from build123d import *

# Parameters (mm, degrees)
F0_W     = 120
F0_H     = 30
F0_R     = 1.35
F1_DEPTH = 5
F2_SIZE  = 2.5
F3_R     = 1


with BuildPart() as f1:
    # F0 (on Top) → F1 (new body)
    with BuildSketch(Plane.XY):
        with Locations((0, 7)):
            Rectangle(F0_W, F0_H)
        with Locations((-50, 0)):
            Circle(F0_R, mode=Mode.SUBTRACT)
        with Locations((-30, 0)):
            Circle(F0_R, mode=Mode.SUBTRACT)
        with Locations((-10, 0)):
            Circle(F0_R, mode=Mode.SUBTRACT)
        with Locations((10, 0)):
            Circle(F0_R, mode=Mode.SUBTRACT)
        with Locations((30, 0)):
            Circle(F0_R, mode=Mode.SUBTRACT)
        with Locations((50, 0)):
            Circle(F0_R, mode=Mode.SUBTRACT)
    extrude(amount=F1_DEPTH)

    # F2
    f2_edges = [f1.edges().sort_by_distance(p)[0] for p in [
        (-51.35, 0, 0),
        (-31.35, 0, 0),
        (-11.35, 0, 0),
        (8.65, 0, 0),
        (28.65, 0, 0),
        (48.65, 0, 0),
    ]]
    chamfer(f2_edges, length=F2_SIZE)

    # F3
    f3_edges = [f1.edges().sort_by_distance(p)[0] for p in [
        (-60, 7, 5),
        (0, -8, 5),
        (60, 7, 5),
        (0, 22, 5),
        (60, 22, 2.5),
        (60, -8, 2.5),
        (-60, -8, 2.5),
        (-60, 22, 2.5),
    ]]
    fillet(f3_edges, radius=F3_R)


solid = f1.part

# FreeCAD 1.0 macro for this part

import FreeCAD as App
import Part
import Sketcher

V = App.Vector
Q = App.Units.Quantity


def edges_at(feature, points):
    """Names of the edges that pass closest to the given points."""
    edges = feature.Shape.Edges
    near = lambda p: min(range(len(edges)), key=lambda i: edges[i].distToShape(Part.Vertex(*p))[0])
    return sorted({f"Edge{near(p) + 1}" for p in points})


def add_polygon(sketch, points):
    """Adds a closed chain of lines whose ends are joined by coincident constraints."""
    first, n = sketch.GeometryCount, len(points)
    for a, b in zip(points, points[1:] + points[:1]):
        sketch.addGeometry(Part.LineSegment(App.Vector(*a, 0), App.Vector(*b, 0)), False)
    for i in range(n):
        sketch.addConstraint(Sketcher.Constraint("Coincident", first + i, 2, first + (i + 1) % n, 1))

doc = App.newDocument("Part")
params = doc.addObject("Spreadsheet::Sheet", "Params")
for row, (alias, value) in enumerate([
    ("sketch1_diameter", "2.7 mm"),
    ("sketch1_width", "120 mm"),
    ("sketch1_height", "30 mm"),
    ("pad1_length", "5 mm"),
    ("chamfer_size", "2.5 mm"),
    ("fillet_radius", "1 mm"),
], start=1):
    params.set(f"A{row}", alias)
    params.set(f"B{row}", "=" + value)
    params.setAlias(f"B{row}", alias)

body = doc.addObject("PartDesign::Body", "Body")

sketch1 = doc.addObject("Sketcher::SketchObject", "Sketch")
body.addObject(sketch1)
sketch1.AttachmentSupport = (doc.XY_Plane, [""])
sketch1.MapMode = "FlatFace"
add_polygon(sketch1, [(-60, 22), (-60, -8), (60, -8), (60, 22)])
sketch1.addGeometry(Part.Circle(V(-50, 0, 0), V(0, 0, 1), 1.4), False)
sketch1.addGeometry(Part.Circle(V(-30, 0, 0), V(0, 0, 1), 1.4), False)
sketch1.addGeometry(Part.Circle(V(-10, 0, 0), V(0, 0, 1), 1.4), False)
sketch1.addGeometry(Part.Circle(V(10, 0, 0), V(0, 0, 1), 1.4), False)
sketch1.addGeometry(Part.Circle(V(30, 0, 0), V(0, 0, 1), 1.4), False)
sketch1.addGeometry(Part.Circle(V(50, 0, 0), V(0, 0, 1), 1.4), False)
sketch1.addConstraint(Sketcher.Constraint("Vertical", 0))
sketch1.addConstraint(Sketcher.Constraint("Horizontal", 1))
sketch1.addConstraint(Sketcher.Constraint("Vertical", 2))
sketch1.addConstraint(Sketcher.Constraint("Horizontal", 3))
sketch1.addConstraint(Sketcher.Constraint("Equal", 4, 5))
sketch1.addConstraint(Sketcher.Constraint("Equal", 5, 6))
sketch1.addConstraint(Sketcher.Constraint("Equal", 6, 7))
sketch1.addConstraint(Sketcher.Constraint("Equal", 7, 8))
sketch1.addConstraint(Sketcher.Constraint("Equal", 8, 9))
sketch1.addConstraint(Sketcher.Constraint("Symmetric", 6, 3, 7, 3, -1, 1))
sketch1.addConstraint(Sketcher.Constraint("Symmetric", 5, 3, 8, 3, -1, 1))
sketch1.addConstraint(Sketcher.Constraint("Symmetric", 4, 3, 9, 3, -1, 1))
sketch1.addConstraint(Sketcher.Constraint("PointOnObject", 4, 3, -1))
sketch1.addConstraint(Sketcher.Constraint("PointOnObject", 5, 3, -1))
sketch1.addConstraint(Sketcher.Constraint("PointOnObject", 6, 3, -1))
sketch1.addConstraint(Sketcher.Constraint("Diameter", 4, Q("2.7 mm")))
sketch1.addConstraint(Sketcher.Constraint("DistanceX", 1, 1, 1, 2, Q("120 mm")))
sketch1.addConstraint(Sketcher.Constraint("DistanceY", 0, 2, 0, 1, Q("30 mm")))
sketch1.addConstraint(Sketcher.Constraint("DistanceX", 4, 3, -1, 1, Q("50 mm")))
sketch1.addConstraint(Sketcher.Constraint("DistanceX", 5, 3, -1, 1, Q("30 mm")))
sketch1.addConstraint(Sketcher.Constraint("DistanceX", 6, 3, -1, 1, Q("10 mm")))
sketch1.addConstraint(Sketcher.Constraint("DistanceX", 0, 2, -1, 1, Q("60 mm")))
sketch1.addConstraint(Sketcher.Constraint("DistanceY", 0, 2, -1, 1, Q("8 mm")))
sketch1.setExpression("Constraints[19]", "Params.sketch1_diameter")
sketch1.setExpression("Constraints[20]", "Params.sketch1_width")
sketch1.setExpression("Constraints[21]", "Params.sketch1_height")
pad1 = doc.addObject("PartDesign::Pad", "Pad")
body.addObject(pad1)
pad1.Profile = sketch1
pad1.setExpression("Length", "Params.pad1_length")
doc.recompute()

chamfer = doc.addObject("PartDesign::Chamfer", "Chamfer")
body.addObject(chamfer)
chamfer.Base = (pad1, edges_at(pad1, [
    (-51.35, 0, 0),
    (-31.35, 0, 0),
    (-11.35, 0, 0),
    (8.65, 0, 0),
    (28.65, 0, 0),
    (48.65, 0, 0),
]))
chamfer.setExpression("Size", "Params.chamfer_size")
doc.recompute()

fillet = doc.addObject("PartDesign::Fillet", "Fillet")
body.addObject(fillet)
fillet.Base = (chamfer, edges_at(chamfer, [
    (-60, 7, 5),
    (0, -8, 5),
    (60, 7, 5),
    (0, 22, 5),
    (60, 22, 2.5),
    (60, -8, 2.5),
    (-60, -8, 2.5),
    (-60, 22, 2.5),
]))
fillet.setExpression("Radius", "Params.fillet_radius")

doc.recompute()
